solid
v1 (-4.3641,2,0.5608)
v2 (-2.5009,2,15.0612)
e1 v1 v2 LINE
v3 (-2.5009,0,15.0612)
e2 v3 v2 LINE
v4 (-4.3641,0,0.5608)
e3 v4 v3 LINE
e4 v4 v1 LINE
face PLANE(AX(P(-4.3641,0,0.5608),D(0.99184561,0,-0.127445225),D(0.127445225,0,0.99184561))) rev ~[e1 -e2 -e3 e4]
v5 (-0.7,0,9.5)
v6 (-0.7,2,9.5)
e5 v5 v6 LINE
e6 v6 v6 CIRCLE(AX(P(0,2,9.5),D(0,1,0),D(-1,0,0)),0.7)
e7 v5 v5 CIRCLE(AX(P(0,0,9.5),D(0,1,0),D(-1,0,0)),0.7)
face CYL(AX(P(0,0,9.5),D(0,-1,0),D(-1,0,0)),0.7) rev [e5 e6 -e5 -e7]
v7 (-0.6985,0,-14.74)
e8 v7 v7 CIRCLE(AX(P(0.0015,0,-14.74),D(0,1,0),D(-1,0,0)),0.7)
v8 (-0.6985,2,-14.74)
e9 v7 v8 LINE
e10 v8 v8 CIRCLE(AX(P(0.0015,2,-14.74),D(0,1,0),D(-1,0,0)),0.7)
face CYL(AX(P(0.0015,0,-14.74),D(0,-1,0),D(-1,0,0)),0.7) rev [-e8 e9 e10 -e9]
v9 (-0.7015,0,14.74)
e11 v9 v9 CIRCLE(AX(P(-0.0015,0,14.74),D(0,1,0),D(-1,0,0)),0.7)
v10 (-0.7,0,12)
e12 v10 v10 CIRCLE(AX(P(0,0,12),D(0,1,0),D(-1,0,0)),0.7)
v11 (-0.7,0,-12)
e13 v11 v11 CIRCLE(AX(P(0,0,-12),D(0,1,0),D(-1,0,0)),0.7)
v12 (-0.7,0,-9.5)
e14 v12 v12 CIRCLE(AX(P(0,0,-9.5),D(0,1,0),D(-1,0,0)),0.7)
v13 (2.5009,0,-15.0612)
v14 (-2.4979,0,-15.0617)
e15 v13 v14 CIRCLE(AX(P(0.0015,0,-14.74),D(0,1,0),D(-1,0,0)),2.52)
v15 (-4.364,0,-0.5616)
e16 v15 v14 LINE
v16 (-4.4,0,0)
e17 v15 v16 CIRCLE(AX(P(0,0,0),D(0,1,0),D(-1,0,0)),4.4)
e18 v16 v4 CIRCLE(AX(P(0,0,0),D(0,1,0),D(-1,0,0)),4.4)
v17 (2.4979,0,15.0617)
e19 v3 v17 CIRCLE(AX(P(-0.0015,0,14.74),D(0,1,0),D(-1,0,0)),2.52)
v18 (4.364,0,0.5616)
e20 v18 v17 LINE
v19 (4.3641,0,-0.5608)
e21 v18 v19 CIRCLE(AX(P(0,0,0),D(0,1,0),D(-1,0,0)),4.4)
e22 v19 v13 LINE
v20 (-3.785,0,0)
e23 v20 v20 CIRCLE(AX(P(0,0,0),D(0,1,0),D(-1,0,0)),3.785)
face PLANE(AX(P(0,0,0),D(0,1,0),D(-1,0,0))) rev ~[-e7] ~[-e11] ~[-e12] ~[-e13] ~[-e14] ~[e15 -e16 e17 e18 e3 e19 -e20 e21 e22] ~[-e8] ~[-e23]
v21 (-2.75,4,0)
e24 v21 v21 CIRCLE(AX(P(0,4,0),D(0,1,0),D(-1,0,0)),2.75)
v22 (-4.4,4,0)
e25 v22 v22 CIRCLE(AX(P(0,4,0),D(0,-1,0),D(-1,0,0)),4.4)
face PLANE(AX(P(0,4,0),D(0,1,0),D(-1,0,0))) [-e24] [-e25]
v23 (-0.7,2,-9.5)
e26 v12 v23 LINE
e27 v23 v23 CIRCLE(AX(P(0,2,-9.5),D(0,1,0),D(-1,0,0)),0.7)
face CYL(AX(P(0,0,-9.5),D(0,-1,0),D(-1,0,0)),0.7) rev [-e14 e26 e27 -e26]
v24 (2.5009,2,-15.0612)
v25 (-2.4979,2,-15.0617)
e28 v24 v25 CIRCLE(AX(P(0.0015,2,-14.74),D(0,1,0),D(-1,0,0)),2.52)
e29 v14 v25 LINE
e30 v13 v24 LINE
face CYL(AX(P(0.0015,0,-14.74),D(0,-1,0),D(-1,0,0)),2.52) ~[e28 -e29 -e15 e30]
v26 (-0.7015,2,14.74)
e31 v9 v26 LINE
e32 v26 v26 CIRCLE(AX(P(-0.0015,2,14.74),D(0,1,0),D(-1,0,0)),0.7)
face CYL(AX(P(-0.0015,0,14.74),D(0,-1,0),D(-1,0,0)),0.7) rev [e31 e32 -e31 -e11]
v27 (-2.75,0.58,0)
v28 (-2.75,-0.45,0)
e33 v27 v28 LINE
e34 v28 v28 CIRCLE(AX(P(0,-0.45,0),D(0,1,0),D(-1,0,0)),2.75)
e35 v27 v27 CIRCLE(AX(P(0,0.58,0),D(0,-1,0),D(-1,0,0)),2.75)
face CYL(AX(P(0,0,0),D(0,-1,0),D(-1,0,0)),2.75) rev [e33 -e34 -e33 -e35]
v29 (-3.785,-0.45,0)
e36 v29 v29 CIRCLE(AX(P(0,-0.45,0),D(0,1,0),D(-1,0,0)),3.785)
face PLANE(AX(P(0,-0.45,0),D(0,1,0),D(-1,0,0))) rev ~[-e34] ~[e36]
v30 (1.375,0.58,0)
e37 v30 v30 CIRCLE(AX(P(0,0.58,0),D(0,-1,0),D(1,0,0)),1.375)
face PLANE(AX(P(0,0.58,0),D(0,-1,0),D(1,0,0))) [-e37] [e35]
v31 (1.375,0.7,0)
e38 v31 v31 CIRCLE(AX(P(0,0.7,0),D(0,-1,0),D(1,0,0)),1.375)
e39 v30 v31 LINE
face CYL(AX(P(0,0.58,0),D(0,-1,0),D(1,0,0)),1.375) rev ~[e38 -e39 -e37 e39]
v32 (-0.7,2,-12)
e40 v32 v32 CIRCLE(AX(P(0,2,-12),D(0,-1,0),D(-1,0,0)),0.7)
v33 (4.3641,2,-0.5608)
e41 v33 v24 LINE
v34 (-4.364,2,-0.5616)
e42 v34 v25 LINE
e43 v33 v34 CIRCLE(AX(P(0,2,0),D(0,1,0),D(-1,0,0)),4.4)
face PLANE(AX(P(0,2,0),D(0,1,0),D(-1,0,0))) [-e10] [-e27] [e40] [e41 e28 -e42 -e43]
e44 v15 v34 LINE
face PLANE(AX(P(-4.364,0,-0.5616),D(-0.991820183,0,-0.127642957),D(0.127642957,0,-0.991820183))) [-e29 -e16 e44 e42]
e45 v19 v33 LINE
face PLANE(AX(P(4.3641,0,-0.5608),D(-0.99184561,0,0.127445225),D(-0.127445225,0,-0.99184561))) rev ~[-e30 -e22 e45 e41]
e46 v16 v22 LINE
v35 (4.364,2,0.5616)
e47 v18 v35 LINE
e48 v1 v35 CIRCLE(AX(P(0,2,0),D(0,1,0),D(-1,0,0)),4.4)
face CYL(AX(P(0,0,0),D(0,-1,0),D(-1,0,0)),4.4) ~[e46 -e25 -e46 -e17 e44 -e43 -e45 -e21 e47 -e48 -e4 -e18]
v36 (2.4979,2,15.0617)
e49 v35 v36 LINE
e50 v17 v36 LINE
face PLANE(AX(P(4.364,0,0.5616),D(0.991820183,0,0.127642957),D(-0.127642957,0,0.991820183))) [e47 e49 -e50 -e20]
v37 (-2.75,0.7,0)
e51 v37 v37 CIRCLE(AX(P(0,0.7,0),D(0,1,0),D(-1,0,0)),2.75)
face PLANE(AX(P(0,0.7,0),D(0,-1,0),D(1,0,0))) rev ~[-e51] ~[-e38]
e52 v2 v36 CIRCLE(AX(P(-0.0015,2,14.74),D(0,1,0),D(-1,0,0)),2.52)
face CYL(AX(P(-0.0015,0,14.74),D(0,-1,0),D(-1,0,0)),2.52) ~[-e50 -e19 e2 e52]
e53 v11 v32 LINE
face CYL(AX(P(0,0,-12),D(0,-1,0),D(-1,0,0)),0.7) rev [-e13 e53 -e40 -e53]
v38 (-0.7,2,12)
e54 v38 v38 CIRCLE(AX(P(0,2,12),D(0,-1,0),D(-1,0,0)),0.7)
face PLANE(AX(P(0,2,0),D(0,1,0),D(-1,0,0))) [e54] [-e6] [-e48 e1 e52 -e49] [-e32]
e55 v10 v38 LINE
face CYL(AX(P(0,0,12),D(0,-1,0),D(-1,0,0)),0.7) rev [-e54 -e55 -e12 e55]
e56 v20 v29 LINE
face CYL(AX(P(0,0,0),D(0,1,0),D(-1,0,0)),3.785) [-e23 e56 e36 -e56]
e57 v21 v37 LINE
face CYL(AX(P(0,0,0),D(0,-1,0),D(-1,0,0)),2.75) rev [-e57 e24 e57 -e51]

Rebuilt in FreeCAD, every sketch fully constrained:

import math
import FreeCAD as App
import Part
import Sketcher
from FreeCAD import Vector
Q = App.Units.Quantity

doc = App.newDocument("Part")
params = doc.addObject("Spreadsheet::Sheet", "Params")
for row, (alias, value) in enumerate([
    ("sketch1_diameter", "1.4 mm"),
    ("sketch1_radius", "4.4 mm"),
    ("sketch1_radius2", "2.52 mm"),
    ("pad1_length", "2 mm"),
    ("sketch2_diameter", "8.8 mm"),
    ("sketch2_diameter2", "7.57 mm"),
    ("pad2_length", "4 mm"),
    ("sketch3_diameter", "5.5 mm"),
    ("sketch3_diameter2", "7.57 mm"),
    ("pad3_length", "4 mm"),
    ("pad3_length2", "0.45 mm"),
    ("sketch4_diameter", "5.5 mm"),
    ("sketch4_diameter2", "2.75 mm"),
    ("pad4_length", "0.12 mm"),
], start=1):
    params.set(f"A{row}", alias)
    params.set(f"B{row}", "=" + value)
    params.setAlias(f"B{row}", alias)

body = doc.addObject("PartDesign::Body", "Body")
body.AllowCompound = True

# Sketch on XZ plane
sketch1 = body.newObject("Sketcher::SketchObject", "Sketch")
sketch1.AttachmentSupport = (doc.getObject("XZ_Plane"), [""])
sketch1.MapMode = "FlatFace"
sketch1.addGeometry(Part.ArcOfCircle(Part.Circle(Vector(0, 0, 0), Vector(0, 0, 1), 4.4), math.radians(7), math.radians(173)), False)
sketch1.addGeometry(Part.LineSegment(Vector(-4.4, 0.6, 0), Vector(-2.5, 15.1, 0)), False)
sketch1.addGeometry(Part.ArcOfCircle(Part.Circle(Vector(0, 14.7, 0), Vector(0, 0, 1), 2.5), math.radians(7), math.radians(173)), False)
sketch1.addGeometry(Part.LineSegment(Vector(2.5, 15.1, 0), Vector(4.4, 0.6, 0)), False)
sketch1.addGeometry(Part.Circle(Vector(0, 12, 0), Vector(0, 0, 1), 0.7), False)
sketch1.addGeometry(Part.Circle(Vector(0, 9.5, 0), Vector(0, 0, 1), 0.7), False)
sketch1.addGeometry(Part.Circle(Vector(0, 14.7, 0), Vector(0, 0, 1), 0.7), False)
sketch1.addGeometry(Part.LineSegment(Vector(-2.5, -15.1, 0), Vector(-4.4, -0.6, 0)), False)
sketch1.addGeometry(Part.ArcOfCircle(Part.Circle(Vector(0, 0, 0), Vector(0, 0, 1), 4.4), math.radians(-173), math.radians(-7)), False)
sketch1.addGeometry(Part.LineSegment(Vector(4.4, -0.6, 0), Vector(2.5, -15.1, 0)), False)
sketch1.addGeometry(Part.ArcOfCircle(Part.Circle(Vector(0, -14.7, 0), Vector(0, 0, 1), 2.5), math.radians(-173), math.radians(-7)), False)
sketch1.addGeometry(Part.Circle(Vector(0, -12, 0), Vector(0, 0, 1), 0.7), False)
sketch1.addGeometry(Part.Circle(Vector(0, -9.5, 0), Vector(0, 0, 1), 0.7), False)
sketch1.addGeometry(Part.Circle(Vector(0, -14.7, 0), Vector(0, 0, 1), 0.7), False)
sketch1.addConstraint(Sketcher.Constraint("Tangent", 0, 2, 1, 1))
sketch1.addConstraint(Sketcher.Constraint("Tangent", 1, 2, 2, 2))
sketch1.addConstraint(Sketcher.Constraint("Tangent", 2, 1, 3, 1))
sketch1.addConstraint(Sketcher.Constraint("Tangent", 3, 2, 0, 1))
sketch1.addConstraint(Sketcher.Constraint("Tangent", 7, 2, 8, 1))
sketch1.addConstraint(Sketcher.Constraint("Tangent", 8, 2, 9, 1))
sketch1.addConstraint(Sketcher.Constraint("Tangent", 9, 2, 10, 2))
sketch1.addConstraint(Sketcher.Constraint("Tangent", 10, 1, 7, 1))
sketch1.addConstraint(Sketcher.Constraint("Coincident", 0, 3, -1, 1))
sketch1.addConstraint(Sketcher.Constraint("Coincident", 8, 3, -1, 1))
sketch1.addConstraint(Sketcher.Constraint("Coincident", 6, 3, 2, 3))
sketch1.addConstraint(Sketcher.Constraint("Coincident", 13, 3, 10, 3))
sketch1.addConstraint(Sketcher.Constraint("Equal", 4, 5))
sketch1.addConstraint(Sketcher.Constraint("Equal", 5, 6))
sketch1.addConstraint(Sketcher.Constraint("Equal", 0, 8))
sketch1.addConstraint(Sketcher.Constraint("Equal", 2, 10))
sketch1.addConstraint(Sketcher.Constraint("Equal", 6, 11))
sketch1.addConstraint(Sketcher.Constraint("Equal", 11, 12))
sketch1.addConstraint(Sketcher.Constraint("Equal", 12, 13))
sketch1.addConstraint(Sketcher.Constraint("Symmetric", 2, 3, 10, 3, -1, 1))
sketch1.addConstraint(Sketcher.Constraint("Symmetric", 4, 3, 11, 3, -1, 1))
sketch1.addConstraint(Sketcher.Constraint("Symmetric", 5, 3, 12, 3, -1, 1))
sketch1.addConstraint(Sketcher.Constraint("PointOnObject", 4, 3, -2))
sketch1.addConstraint(Sketcher.Constraint("PointOnObject", 5, 3, -2))
sketch1.addConstraint(Sketcher.Constraint("Vertical", 0, 2, 7, 2))
sketch1.addConstraint(Sketcher.Constraint("Diameter", 4, Q("1.4 mm")))
sketch1.addConstraint(Sketcher.Constraint("Radius", 0, Q("4.4 mm")))
sketch1.addConstraint(Sketcher.Constraint("Radius", 2, Q("2.52 mm")))
sketch1.addConstraint(Sketcher.Constraint("DistanceY", -1, 1, 4, 3, Q("12 mm")))
sketch1.addConstraint(Sketcher.Constraint("DistanceY", -1, 1, 5, 3, Q("9.5 mm")))
sketch1.addConstraint(Sketcher.Constraint("DistanceY", -1, 1, 2, 3, Q("14.74 mm")))
sketch1.setExpression("Constraints[25]", "Params.sketch1_diameter")
sketch1.setExpression("Constraints[26]", "Params.sketch1_radius")
sketch1.setExpression("Constraints[27]", "Params.sketch1_radius2")
pad1 = body.newObject("PartDesign::Pad", "Pad")
pad1.Profile = sketch1
pad1.setExpression("Length", "Params.pad1_length")
pad1.Reversed = True

# Sketch on XZ plane
sketch2 = body.newObject("Sketcher::SketchObject", "Sketch001")
sketch2.AttachmentSupport = (doc.getObject("XZ_Plane"), [""])
sketch2.MapMode = "FlatFace"
sketch2.addGeometry(Part.Circle(Vector(0, 0, 0), Vector(0, 0, 1), 4.4), False)
sketch2.addGeometry(Part.Circle(Vector(0, 0, 0), Vector(0, 0, 1), 3.8), False)
sketch2.addConstraint(Sketcher.Constraint("Coincident", 0, 3, -1, 1))
sketch2.addConstraint(Sketcher.Constraint("Coincident", 1, 3, -1, 1))
sketch2.addConstraint(Sketcher.Constraint("Diameter", 0, Q("8.8 mm")))
sketch2.addConstraint(Sketcher.Constraint("Diameter", 1, Q("7.57 mm")))
sketch2.setExpression("Constraints[2]", "Params.sketch2_diameter")
sketch2.setExpression("Constraints[3]", "Params.sketch2_diameter2")
pad2 = body.newObject("PartDesign::Pad", "Pad001")
pad2.Profile = sketch2
pad2.setExpression("Length", "Params.pad2_length")
pad2.Reversed = True

# Sketch on XZ plane
sketch3 = body.newObject("Sketcher::SketchObject", "Sketch002")
sketch3.AttachmentSupport = (doc.getObject("XZ_Plane"), [""])
sketch3.MapMode = "FlatFace"
sketch3.addGeometry(Part.Circle(Vector(0, 0, 0), Vector(0, 0, 1), 3.8), False)
sketch3.addGeometry(Part.Circle(Vector(0, 0, 0), Vector(0, 0, 1), 2.8), False)
sketch3.addConstraint(Sketcher.Constraint("Coincident", 0, 3, -1, 1))
sketch3.addConstraint(Sketcher.Constraint("Coincident", 1, 3, -1, 1))
sketch3.addConstraint(Sketcher.Constraint("Diameter", 1, Q("5.5 mm")))
sketch3.addConstraint(Sketcher.Constraint("Diameter", 0, Q("7.57 mm")))
sketch3.setExpression("Constraints[2]", "Params.sketch3_diameter")
sketch3.setExpression("Constraints[3]", "Params.sketch3_diameter2")
pad3 = body.newObject("PartDesign::Pad", "Pad002")
pad3.Profile = sketch3
pad3.Type = "TwoLengths"
pad3.setExpression("Length", "Params.pad3_length")
pad3.setExpression("Length2", "Params.pad3_length2")
pad3.Reversed = True

# Sketch on XZ plane
sketch4 = body.newObject("Sketcher::SketchObject", "Sketch003")
sketch4.AttachmentSupport = (doc.getObject("XZ_Plane"), [""])
sketch4.MapMode = "FlatFace"
sketch4.AttachmentOffset = App.Placement(Vector(0, 0, -0.58), App.Rotation())
sketch4.addGeometry(Part.Circle(Vector(0, 0, 0), Vector(0, 0, 1), 2.8), False)
sketch4.addGeometry(Part.Circle(Vector(0, 0, 0), Vector(0, 0, 1), 1.4), False)
sketch4.addConstraint(Sketcher.Constraint("Coincident", 0, 3, -1, 1))
sketch4.addConstraint(Sketcher.Constraint("Coincident", 1, 3, -1, 1))
sketch4.addConstraint(Sketcher.Constraint("Diameter", 0, Q("5.5 mm")))
sketch4.addConstraint(Sketcher.Constraint("Diameter", 1, Q("2.75 mm")))
sketch4.setExpression("Constraints[2]", "Params.sketch4_diameter")
sketch4.setExpression("Constraints[3]", "Params.sketch4_diameter2")
pad4 = body.newObject("PartDesign::Pad", "Pad003")
pad4.Profile = sketch4
pad4.setExpression("Length", "Params.pad4_length")
pad4.Reversed = True

doc.recompute()
